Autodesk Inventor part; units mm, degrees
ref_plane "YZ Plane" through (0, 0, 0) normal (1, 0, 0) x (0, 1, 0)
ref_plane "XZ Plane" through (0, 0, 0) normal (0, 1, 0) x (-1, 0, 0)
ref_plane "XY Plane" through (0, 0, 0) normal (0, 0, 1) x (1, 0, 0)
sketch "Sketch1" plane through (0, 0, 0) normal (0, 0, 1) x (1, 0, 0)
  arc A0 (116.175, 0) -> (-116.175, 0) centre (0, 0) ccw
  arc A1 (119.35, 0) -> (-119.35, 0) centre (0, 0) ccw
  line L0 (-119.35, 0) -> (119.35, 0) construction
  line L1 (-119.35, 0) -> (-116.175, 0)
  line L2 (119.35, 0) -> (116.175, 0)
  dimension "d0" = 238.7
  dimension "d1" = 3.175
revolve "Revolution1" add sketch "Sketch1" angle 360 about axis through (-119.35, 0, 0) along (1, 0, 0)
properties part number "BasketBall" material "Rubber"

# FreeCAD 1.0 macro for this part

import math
import FreeCAD as App
import Part
import Sketcher
Q = App.Units.Quantity

doc = App.newDocument("Part")
body = doc.addObject("PartDesign::Body", "Body")

sketch1 = body.newObject("Sketcher::SketchObject", "Sketch")
sketch1.AttachmentSupport = (doc.getObject("XY_Plane"), [""])
sketch1.MapMode = "FlatFace"
sketch1.addGeometry(Part.ArcOfCircle(Part.Circle(App.Vector(0, 0, 0), App.Vector(0, 0, 1), 116.2), math.radians(0), math.radians(180)), False)
sketch1.addGeometry(Part.LineSegment(App.Vector(116.2, 0, 0), App.Vector(119.3, 0, 0)), False)
sketch1.addGeometry(Part.ArcOfCircle(Part.Circle(App.Vector(0, 0, 0), App.Vector(0, 0, 1), 119.3), math.radians(0), math.radians(180)), False)
sketch1.addGeometry(Part.LineSegment(App.Vector(-119.3, 0, 0), App.Vector(-116.2, 0, 0)), False)
sketch1.addConstraint(Sketcher.Constraint("Coincident", 0, 1, 1, 1))
sketch1.addConstraint(Sketcher.Constraint("Coincident", 1, 2, 2, 1))
sketch1.addConstraint(Sketcher.Constraint("Coincident", 2, 2, 3, 1))
sketch1.addConstraint(Sketcher.Constraint("Coincident", 3, 2, 0, 2))
sketch1.addConstraint(Sketcher.Constraint("Horizontal", 1))
sketch1.addConstraint(Sketcher.Constraint("Horizontal", 3))
sketch1.addConstraint(Sketcher.Constraint("Coincident", 0, 3, -1, 1))
sketch1.addConstraint(Sketcher.Constraint("Coincident", 2, 3, -1, 1))
sketch1.addConstraint(Sketcher.Constraint("PointOnObject", 0, 1, -1))
sketch1.addConstraint(Sketcher.Constraint("PointOnObject", 2, 2, -1))
sketch1.addConstraint(Sketcher.Constraint("Radius", 2, Q("119.35 mm")))
sketch1.addConstraint(Sketcher.Constraint("DistanceX", 1, 1, 1, 2, Q("3.175 mm")))
revolution = body.newObject("PartDesign::Revolution", "Revolution")
revolution.Profile = sketch1
revolution.ReferenceAxis = (sketch1, ["H_Axis"])
revolution.Angle = 360

doc.recompute()
